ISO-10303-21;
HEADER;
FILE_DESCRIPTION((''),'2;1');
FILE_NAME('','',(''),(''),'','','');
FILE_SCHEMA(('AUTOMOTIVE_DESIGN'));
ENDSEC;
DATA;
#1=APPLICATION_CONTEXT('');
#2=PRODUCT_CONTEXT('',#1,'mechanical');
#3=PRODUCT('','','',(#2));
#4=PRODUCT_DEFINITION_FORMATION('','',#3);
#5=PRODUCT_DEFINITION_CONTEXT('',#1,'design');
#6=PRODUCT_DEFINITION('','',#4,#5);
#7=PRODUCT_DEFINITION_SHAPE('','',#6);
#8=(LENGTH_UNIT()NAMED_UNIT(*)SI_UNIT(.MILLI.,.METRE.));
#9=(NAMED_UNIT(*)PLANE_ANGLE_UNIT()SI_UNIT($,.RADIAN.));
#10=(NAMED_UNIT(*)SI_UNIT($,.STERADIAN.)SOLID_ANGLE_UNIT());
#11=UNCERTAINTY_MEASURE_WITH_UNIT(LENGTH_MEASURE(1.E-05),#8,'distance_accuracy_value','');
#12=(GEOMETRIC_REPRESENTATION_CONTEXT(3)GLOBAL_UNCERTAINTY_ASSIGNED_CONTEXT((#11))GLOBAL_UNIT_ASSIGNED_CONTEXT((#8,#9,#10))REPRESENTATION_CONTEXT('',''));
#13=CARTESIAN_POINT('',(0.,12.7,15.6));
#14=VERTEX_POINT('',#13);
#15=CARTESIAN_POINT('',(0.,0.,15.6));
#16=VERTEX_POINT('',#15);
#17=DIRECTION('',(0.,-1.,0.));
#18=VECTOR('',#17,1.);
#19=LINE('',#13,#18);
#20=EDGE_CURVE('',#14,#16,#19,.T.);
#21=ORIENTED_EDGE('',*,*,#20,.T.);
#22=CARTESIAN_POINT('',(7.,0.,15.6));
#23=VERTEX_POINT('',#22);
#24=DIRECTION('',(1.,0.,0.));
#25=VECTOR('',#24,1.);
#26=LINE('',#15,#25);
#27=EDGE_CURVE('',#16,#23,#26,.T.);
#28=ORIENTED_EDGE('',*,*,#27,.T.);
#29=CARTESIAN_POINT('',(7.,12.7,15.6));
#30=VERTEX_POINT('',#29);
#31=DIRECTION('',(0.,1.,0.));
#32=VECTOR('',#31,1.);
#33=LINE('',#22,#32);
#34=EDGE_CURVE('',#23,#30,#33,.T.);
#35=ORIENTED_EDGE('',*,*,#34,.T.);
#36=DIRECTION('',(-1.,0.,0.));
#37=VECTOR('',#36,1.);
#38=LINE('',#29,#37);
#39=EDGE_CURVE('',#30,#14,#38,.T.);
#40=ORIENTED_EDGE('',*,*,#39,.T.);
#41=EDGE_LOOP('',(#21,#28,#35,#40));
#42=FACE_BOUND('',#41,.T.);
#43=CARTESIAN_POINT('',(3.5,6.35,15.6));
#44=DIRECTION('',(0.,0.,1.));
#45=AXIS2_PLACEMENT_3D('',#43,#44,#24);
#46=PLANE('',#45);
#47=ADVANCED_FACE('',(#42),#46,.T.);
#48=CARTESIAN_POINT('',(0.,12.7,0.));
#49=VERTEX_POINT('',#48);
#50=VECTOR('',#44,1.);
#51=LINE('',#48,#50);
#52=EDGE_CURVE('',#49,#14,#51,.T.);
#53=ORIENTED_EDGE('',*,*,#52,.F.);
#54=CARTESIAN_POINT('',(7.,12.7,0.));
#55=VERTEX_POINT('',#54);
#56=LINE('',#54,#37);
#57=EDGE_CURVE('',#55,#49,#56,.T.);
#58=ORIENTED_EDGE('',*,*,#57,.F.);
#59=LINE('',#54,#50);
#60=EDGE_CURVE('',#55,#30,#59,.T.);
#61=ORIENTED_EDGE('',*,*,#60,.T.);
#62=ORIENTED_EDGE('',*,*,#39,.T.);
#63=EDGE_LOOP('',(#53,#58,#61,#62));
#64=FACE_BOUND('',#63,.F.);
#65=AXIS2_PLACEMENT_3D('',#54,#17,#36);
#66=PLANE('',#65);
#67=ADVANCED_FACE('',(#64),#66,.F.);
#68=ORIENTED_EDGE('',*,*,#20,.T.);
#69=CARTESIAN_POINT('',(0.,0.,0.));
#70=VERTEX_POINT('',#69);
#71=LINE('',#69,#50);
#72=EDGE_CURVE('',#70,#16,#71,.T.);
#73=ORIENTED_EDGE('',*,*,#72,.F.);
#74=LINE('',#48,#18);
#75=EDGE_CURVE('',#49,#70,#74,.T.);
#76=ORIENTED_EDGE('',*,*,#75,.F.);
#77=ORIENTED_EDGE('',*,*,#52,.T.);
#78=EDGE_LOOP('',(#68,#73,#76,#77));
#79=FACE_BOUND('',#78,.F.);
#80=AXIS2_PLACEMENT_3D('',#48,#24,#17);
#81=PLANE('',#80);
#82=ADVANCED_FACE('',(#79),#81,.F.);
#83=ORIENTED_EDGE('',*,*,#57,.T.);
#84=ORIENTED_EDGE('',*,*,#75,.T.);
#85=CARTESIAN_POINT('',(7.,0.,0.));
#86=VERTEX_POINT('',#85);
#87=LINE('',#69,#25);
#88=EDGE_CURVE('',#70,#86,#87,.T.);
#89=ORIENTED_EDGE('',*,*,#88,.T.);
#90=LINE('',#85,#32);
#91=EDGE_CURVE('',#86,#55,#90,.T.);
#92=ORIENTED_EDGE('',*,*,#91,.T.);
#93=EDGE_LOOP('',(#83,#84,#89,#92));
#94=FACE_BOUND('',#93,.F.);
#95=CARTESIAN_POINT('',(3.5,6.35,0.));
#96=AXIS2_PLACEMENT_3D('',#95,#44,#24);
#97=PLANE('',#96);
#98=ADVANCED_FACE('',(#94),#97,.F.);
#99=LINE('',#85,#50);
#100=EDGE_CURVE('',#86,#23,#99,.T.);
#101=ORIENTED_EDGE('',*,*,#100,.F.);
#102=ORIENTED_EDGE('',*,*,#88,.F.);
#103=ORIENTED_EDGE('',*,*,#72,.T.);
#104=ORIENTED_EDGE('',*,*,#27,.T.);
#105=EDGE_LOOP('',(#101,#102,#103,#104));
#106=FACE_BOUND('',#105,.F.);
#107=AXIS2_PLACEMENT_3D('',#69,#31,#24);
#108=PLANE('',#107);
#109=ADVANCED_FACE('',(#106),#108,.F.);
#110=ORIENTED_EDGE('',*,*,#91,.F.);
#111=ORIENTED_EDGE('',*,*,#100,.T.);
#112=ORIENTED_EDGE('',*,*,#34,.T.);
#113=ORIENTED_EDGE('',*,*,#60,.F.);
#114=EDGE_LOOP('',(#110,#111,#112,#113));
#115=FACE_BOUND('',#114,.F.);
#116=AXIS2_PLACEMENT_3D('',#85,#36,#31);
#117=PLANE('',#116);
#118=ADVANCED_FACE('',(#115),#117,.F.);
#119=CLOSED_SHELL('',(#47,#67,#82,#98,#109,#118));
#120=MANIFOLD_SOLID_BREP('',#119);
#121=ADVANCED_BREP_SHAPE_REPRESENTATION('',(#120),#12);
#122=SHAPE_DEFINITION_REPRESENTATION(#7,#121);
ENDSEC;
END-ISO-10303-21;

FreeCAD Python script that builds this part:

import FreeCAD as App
import Part
import Sketcher


def add_polygon(sketch, points):
    """Adds a closed chain of lines whose ends are joined by coincident constraints."""
    first, n = sketch.GeometryCount, len(points)
    for a, b in zip(points, points[1:] + points[:1]):
        sketch.addGeometry(Part.LineSegment(App.Vector(*a, 0), App.Vector(*b, 0)), False)
    for i in range(n):
        sketch.addConstraint(Sketcher.Constraint("Coincident", first + i, 2, first + (i + 1) % n, 1))

doc = App.newDocument("Part")
params = doc.addObject("Spreadsheet::Sheet", "Params")
for row, (alias, value) in enumerate([
    ("sketch1_width", "7 mm"),
    ("sketch1_height", "12.7 mm"),
    ("pad1_length", "15.6 mm"),
], start=1):
    params.set(f"A{row}", alias)
    params.set(f"B{row}", "=" + value)
    params.setAlias(f"B{row}", alias)

body = doc.addObject("PartDesign::Body", "Body")

# Sketch on XY plane
sketch1 = body.newObject("Sketcher::SketchObject", "Sketch")
sketch1.AttachmentSupport = (doc.getObject("XY_Plane"), [""])
sketch1.MapMode = "FlatFace"
add_polygon(sketch1, [(0, 13), (0, 0), (7, 0), (7, 13)])  # lines 0-3
sketch1.addConstraint([
    Sketcher.Constraint("Vertical", 0),
    Sketcher.Constraint("Horizontal", 1),
    Sketcher.Constraint("Vertical", 2),
    Sketcher.Constraint("Horizontal", 3),
    Sketcher.Constraint("Coincident", 0, 2, -1, 1),
    Sketcher.Constraint("DistanceX", 1, 1, 1, 2, 7.0),
    Sketcher.Constraint("DistanceY", 0, 2, 0, 1, 12.7),
])
sketch1.setExpression("Constraints[9]", "Params.sketch1_width")
sketch1.setExpression("Constraints[10]", "Params.sketch1_height")
pad1 = body.newObject("PartDesign::Pad", "Pad")
pad1.Profile = sketch1
pad1.setExpression("Length", "Params.pad1_length")

doc.recompute()
